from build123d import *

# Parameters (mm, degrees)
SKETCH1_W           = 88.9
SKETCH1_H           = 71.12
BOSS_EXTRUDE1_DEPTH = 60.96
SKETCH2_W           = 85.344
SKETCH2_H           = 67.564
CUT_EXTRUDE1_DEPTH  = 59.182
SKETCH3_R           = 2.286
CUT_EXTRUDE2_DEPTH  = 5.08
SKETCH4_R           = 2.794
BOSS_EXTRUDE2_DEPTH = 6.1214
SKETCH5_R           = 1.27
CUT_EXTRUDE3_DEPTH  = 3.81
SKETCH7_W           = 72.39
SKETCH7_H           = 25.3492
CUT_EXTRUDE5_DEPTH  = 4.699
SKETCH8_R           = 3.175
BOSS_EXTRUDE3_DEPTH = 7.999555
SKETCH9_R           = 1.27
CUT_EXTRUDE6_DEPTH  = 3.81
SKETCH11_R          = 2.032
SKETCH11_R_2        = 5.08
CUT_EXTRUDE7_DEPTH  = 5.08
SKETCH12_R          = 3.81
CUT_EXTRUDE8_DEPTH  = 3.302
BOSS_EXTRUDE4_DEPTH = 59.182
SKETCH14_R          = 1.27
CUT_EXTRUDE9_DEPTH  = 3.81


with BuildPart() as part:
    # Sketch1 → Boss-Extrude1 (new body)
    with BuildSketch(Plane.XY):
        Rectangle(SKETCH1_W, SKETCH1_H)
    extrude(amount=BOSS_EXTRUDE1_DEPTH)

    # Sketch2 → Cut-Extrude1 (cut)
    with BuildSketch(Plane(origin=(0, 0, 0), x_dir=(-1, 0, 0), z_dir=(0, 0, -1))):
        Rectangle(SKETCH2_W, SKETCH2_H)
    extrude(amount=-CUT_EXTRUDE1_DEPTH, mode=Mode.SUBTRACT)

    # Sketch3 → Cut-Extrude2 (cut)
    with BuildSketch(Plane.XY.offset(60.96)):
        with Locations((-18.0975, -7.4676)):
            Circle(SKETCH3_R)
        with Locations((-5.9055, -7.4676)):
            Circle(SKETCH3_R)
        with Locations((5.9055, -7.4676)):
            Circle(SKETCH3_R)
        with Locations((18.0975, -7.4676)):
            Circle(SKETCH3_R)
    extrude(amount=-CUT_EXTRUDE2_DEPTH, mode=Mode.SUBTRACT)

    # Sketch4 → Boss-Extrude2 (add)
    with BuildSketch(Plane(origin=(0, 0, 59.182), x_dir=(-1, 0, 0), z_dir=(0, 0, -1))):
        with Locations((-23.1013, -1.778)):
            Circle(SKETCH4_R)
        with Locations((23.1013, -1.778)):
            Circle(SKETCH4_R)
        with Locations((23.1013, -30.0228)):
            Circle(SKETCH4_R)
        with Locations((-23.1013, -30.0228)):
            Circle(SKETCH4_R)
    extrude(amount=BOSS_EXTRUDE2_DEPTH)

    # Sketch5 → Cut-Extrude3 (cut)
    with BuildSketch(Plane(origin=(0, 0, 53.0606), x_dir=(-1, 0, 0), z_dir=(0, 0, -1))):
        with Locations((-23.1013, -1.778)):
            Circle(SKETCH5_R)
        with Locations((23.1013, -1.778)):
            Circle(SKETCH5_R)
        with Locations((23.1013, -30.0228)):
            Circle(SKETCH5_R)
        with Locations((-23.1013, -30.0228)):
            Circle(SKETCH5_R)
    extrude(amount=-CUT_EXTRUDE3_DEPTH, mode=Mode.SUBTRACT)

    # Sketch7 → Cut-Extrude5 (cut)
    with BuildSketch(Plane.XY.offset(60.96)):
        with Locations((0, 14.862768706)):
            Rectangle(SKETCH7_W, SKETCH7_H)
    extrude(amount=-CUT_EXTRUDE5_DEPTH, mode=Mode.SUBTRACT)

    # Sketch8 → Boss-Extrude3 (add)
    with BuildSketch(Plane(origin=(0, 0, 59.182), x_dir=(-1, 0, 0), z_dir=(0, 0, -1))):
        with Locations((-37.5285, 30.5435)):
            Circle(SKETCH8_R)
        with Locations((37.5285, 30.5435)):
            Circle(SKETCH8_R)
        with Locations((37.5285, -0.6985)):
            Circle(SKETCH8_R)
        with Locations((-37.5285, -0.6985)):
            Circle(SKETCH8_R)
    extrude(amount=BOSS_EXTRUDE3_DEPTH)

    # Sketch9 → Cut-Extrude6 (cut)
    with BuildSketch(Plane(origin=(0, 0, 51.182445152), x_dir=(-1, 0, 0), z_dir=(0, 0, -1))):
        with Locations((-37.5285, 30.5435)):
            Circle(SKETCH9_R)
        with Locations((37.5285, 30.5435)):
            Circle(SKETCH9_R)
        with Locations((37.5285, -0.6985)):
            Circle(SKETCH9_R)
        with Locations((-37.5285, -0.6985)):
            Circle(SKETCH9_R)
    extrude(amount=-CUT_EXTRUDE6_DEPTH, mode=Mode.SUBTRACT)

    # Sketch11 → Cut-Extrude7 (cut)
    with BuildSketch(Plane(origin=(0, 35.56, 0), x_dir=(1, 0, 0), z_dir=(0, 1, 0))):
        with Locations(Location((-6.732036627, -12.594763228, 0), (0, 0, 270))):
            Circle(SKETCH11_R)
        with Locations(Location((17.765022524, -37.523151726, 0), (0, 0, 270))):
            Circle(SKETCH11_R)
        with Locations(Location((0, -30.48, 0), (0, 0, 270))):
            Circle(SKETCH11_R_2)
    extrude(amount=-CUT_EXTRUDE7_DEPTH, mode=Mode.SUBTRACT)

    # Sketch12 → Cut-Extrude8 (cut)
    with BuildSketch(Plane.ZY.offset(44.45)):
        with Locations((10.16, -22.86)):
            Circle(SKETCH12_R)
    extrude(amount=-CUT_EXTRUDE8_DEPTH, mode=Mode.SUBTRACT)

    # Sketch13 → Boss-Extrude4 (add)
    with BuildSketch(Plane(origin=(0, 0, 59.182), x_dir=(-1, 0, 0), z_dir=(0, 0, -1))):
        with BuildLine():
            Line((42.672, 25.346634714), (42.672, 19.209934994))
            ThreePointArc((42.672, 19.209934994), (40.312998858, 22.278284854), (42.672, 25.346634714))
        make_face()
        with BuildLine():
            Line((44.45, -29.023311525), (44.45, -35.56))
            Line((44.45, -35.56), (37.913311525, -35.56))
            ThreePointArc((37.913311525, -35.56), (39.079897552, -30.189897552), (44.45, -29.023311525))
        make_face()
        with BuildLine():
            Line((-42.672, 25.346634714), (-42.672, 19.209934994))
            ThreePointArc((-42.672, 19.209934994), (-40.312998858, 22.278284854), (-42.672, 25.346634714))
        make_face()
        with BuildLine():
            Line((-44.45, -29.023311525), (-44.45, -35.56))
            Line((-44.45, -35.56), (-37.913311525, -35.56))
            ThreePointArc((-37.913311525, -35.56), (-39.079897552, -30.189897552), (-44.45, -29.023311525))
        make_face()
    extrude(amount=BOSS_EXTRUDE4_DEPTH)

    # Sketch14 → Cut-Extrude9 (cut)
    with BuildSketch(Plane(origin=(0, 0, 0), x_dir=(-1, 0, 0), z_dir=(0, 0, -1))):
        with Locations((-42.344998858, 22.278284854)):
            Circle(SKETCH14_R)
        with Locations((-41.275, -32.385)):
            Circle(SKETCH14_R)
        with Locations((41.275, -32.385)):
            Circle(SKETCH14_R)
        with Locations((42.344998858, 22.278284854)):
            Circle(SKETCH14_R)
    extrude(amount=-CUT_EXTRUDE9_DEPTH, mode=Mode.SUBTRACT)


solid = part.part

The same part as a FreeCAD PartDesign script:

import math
import FreeCAD as App
import Part
import Sketcher
Q = App.Units.Quantity

doc = App.newDocument("Part")
body = doc.addObject("PartDesign::Body", "Body")

sketch1 = body.newObject("Sketcher::SketchObject", "Sketch")
sketch1.AttachmentSupport = (doc.getObject("XY_Plane"), [""])
sketch1.MapMode = "FlatFace"
sketch1.addGeometry([
    Part.LineSegment(App.Vector(-44, 36, 0), App.Vector(-44, -36, 0)),
    Part.LineSegment(App.Vector(-44, -36, 0), App.Vector(44, -36, 0)),
    Part.LineSegment(App.Vector(44, -36, 0), App.Vector(44, 36, 0)),
    Part.LineSegment(App.Vector(44, 36, 0), App.Vector(-44, 36, 0)),
], False)
sketch1.addConstraint([
    Sketcher.Constraint("Coincident", 0, 2, 1, 1),
    Sketcher.Constraint("Coincident", 1, 2, 2, 1),
    Sketcher.Constraint("Coincident", 2, 2, 3, 1),
    Sketcher.Constraint("Coincident", 3, 2, 0, 1),
    Sketcher.Constraint("Vertical", 0),
    Sketcher.Constraint("Horizontal", 1),
    Sketcher.Constraint("Vertical", 2),
    Sketcher.Constraint("Horizontal", 3),
    Sketcher.Constraint("Symmetric", 0, 2, 2, 2, -1, 1),
    Sketcher.Constraint("DistanceX", 1, 1, 1, 2, Q("3.5 in")),
    Sketcher.Constraint("DistanceY", 0, 2, 0, 1, Q("2.8 in")),
])
pad1 = body.newObject("PartDesign::Pad", "Pad")
pad1.Profile = sketch1
pad1.Length = Q("2.4 in")

sketch2 = body.newObject("Sketcher::SketchObject", "Sketch001")
sketch2.AttachmentSupport = (doc.getObject("XY_Plane"), [""])
sketch2.MapMode = "FlatFace"
sketch2.addGeometry([
    Part.LineSegment(App.Vector(43, 34, 0), App.Vector(43, -34, 0)),
    Part.LineSegment(App.Vector(43, -34, 0), App.Vector(-43, -34, 0)),
    Part.LineSegment(App.Vector(-43, -34, 0), App.Vector(-43, 34, 0)),
    Part.LineSegment(App.Vector(-43, 34, 0), App.Vector(43, 34, 0)),
], False)
sketch2.addConstraint([
    Sketcher.Constraint("Coincident", 0, 2, 1, 1),
    Sketcher.Constraint("Coincident", 1, 2, 2, 1),
    Sketcher.Constraint("Coincident", 2, 2, 3, 1),
    Sketcher.Constraint("Coincident", 3, 2, 0, 1),
    Sketcher.Constraint("Vertical", 0),
    Sketcher.Constraint("Horizontal", 1),
    Sketcher.Constraint("Vertical", 2),
    Sketcher.Constraint("Horizontal", 3),
    Sketcher.Constraint("Symmetric", 0, 2, 2, 2, -1, 1),
    Sketcher.Constraint("DistanceX", 1, 2, 1, 1, Q("3.36 in")),
    Sketcher.Constraint("DistanceY", 0, 2, 0, 1, Q("2.66 in")),
])
pocket1 = body.newObject("PartDesign::Pocket", "Pocket")
pocket1.Profile = sketch2
pocket1.Length = Q("2.33 in")
pocket1.Reversed = True

sketch3 = body.newObject("Sketcher::SketchObject", "Sketch002")
sketch3.AttachmentSupport = (doc.getObject("XY_Plane"), [""])
sketch3.MapMode = "FlatFace"
sketch3.AttachmentOffset = App.Placement(App.Vector(0, 0, 2.4 * 25.4), App.Rotation())
sketch3.addGeometry([
    Part.Circle(App.Vector(-18.1, -7.5, 0), App.Vector(0, 0, 1), 2.3),
    Part.Circle(App.Vector(-5.9, -7.5, 0), App.Vector(0, 0, 1), 2.3),
    Part.Circle(App.Vector(5.9, -7.5, 0), App.Vector(0, 0, 1), 2.3),
    Part.Circle(App.Vector(18.1, -7.5, 0), App.Vector(0, 0, 1), 2.3),
], False)
sketch3.addConstraint([
    Sketcher.Constraint("Equal", 0, 1),
    Sketcher.Constraint("Equal", 1, 2),
    Sketcher.Constraint("Equal", 2, 3),
    Sketcher.Constraint("Symmetric", 1, 3, 2, 3, -2),
    Sketcher.Constraint("Symmetric", 0, 3, 3, 3, -2),
    Sketcher.Constraint("Horizontal", 0, 3, 1, 3),
    Sketcher.Constraint("Diameter", 0, Q("0.18 in")),
    Sketcher.Constraint("DistanceX", 0, 3, 1, 3, Q("0.48 in")),
    Sketcher.Constraint("DistanceY", 0, 3, -1, 1, Q("0.294 in")),
    Sketcher.Constraint("DistanceX", 1, 3, 2, 3, Q("0.465 in")),
])
pocket2 = body.newObject("PartDesign::Pocket", "Pocket001")
pocket2.Profile = sketch3
pocket2.Length = Q("0.2 in")

sketch4 = body.newObject("Sketcher::SketchObject", "Sketch003")
sketch4.AttachmentSupport = (doc.getObject("XY_Plane"), [""])
sketch4.MapMode = "FlatFace"
sketch4.AttachmentOffset = App.Placement(App.Vector(0, 0, 2.33 * 25.4), App.Rotation())
sketch4.addGeometry([
    Part.Circle(App.Vector(23.1, -1.8, 0), App.Vector(0, 0, 1), 2.8),
    Part.Circle(App.Vector(-23.1, -1.8, 0), App.Vector(0, 0, 1), 2.8),
    Part.Circle(App.Vector(-23.1, -30, 0), App.Vector(0, 0, 1), 2.8),
    Part.Circle(App.Vector(23.1, -30, 0), App.Vector(0, 0, 1), 2.8),
], False)
sketch4.addConstraint([
    Sketcher.Constraint("Equal", 0, 1),
    Sketcher.Constraint("Equal", 1, 2),
    Sketcher.Constraint("Equal", 2, 3),
    Sketcher.Constraint("Symmetric", 0, 3, 1, 3, -2),
    Sketcher.Constraint("Symmetric", 2, 3, 3, 3, -2),
    Sketcher.Constraint("Vertical", 1, 3, 2, 3),
    Sketcher.Constraint("Diameter", 0, Q("0.22 in")),
    Sketcher.Constraint("DistanceY", 0, 3, -1, 1, Q("0.07 in")),
    Sketcher.Constraint("DistanceY", 2, 3, -1, 1, Q("1.182 in")),
    Sketcher.Constraint("DistanceX", 1, 3, 0, 3, Q("1.819 in")),
])
pad2 = body.newObject("PartDesign::Pad", "Pad001")
pad2.Profile = sketch4
pad2.Length = Q("0.241 in")
pad2.Reversed = True

sketch5 = body.newObject("Sketcher::SketchObject", "Sketch004")
sketch5.AttachmentSupport = (doc.getObject("XY_Plane"), [""])
sketch5.MapMode = "FlatFace"
sketch5.AttachmentOffset = App.Placement(App.Vector(0, 0, 2.089 * 25.4), App.Rotation())
sketch5.addGeometry([
    Part.Circle(App.Vector(23.1, -1.8, 0), App.Vector(0, 0, 1), 1.3),
    Part.Circle(App.Vector(-23.1, -1.8, 0), App.Vector(0, 0, 1), 1.3),
    Part.Circle(App.Vector(-23.1, -30, 0), App.Vector(0, 0, 1), 1.3),
    Part.Circle(App.Vector(23.1, -30, 0), App.Vector(0, 0, 1), 1.3),
], False)
sketch5.addConstraint([
    Sketcher.Constraint("Equal", 0, 1),
    Sketcher.Constraint("Equal", 1, 2),
    Sketcher.Constraint("Equal", 2, 3),
    Sketcher.Constraint("Symmetric", 0, 3, 1, 3, -2),
    Sketcher.Constraint("Symmetric", 2, 3, 3, 3, -2),
    Sketcher.Constraint("Vertical", 1, 3, 2, 3),
    Sketcher.Constraint("Diameter", 0, Q("0.1 in")),
    Sketcher.Constraint("DistanceY", 0, 3, -1, 1, Q("0.07 in")),
    Sketcher.Constraint("DistanceY", 2, 3, -1, 1, Q("1.182 in")),
    Sketcher.Constraint("DistanceX", 1, 3, 0, 3, Q("1.819 in")),
])
pocket3 = body.newObject("PartDesign::Pocket", "Pocket002")
pocket3.Profile = sketch5
pocket3.Length = Q("0.15 in")
pocket3.Reversed = True

sketch6 = body.newObject("Sketcher::SketchObject", "Sketch005")
sketch6.AttachmentSupport = (doc.getObject("XY_Plane"), [""])
sketch6.MapMode = "FlatFace"
sketch6.AttachmentOffset = App.Placement(App.Vector(0, 0, 2.4 * 25.4), App.Rotation())
sketch6.addGeometry([
    Part.LineSegment(App.Vector(-36, 28, 0), App.Vector(-36, 2, 0)),
    Part.LineSegment(App.Vector(-36, 2, 0), App.Vector(36, 2, 0)),
    Part.LineSegment(App.Vector(36, 2, 0), App.Vector(36, 28, 0)),
    Part.LineSegment(App.Vector(36, 28, 0), App.Vector(-36, 28, 0)),
], False)
sketch6.addConstraint([
    Sketcher.Constraint("Coincident", 0, 2, 1, 1),
    Sketcher.Constraint("Coincident", 1, 2, 2, 1),
    Sketcher.Constraint("Coincident", 2, 2, 3, 1),
    Sketcher.Constraint("Coincident", 3, 2, 0, 1),
    Sketcher.Constraint("Vertical", 0),
    Sketcher.Constraint("Horizontal", 1),
    Sketcher.Constraint("Vertical", 2),
    Sketcher.Constraint("Horizontal", 3),
    Sketcher.Constraint("DistanceX", 1, 1, 1, 2, Q("2.85 in")),
    Sketcher.Constraint("DistanceY", 0, 2, 0, 1, Q("0.998 in")),
    Sketcher.Constraint("DistanceX", 0, 2, -1, 1, Q("1.425 in")),
    Sketcher.Constraint("DistanceY", -1, 1, 0, 2, Q("2.188169 mm")),
])
pocket4 = body.newObject("PartDesign::Pocket", "Pocket003")
pocket4.Profile = sketch6
pocket4.Length = Q("0.185 in")

sketch7 = body.newObject("Sketcher::SketchObject", "Sketch006")
sketch7.AttachmentSupport = (doc.getObject("XY_Plane"), [""])
sketch7.MapMode = "FlatFace"
sketch7.AttachmentOffset = App.Placement(App.Vector(0, 0, 2.33 * 25.4), App.Rotation())
sketch7.addGeometry([
    Part.Circle(App.Vector(37.5, 30.5, 0), App.Vector(0, 0, 1), 3.2),
    Part.Circle(App.Vector(-37.5, 30.5, 0), App.Vector(0, 0, 1), 3.2),
    Part.Circle(App.Vector(-37.5, -0.7, 0), App.Vector(0, 0, 1), 3.2),
    Part.Circle(App.Vector(37.5, -0.7, 0), App.Vector(0, 0, 1), 3.2),
], False)
sketch7.addConstraint([
    Sketcher.Constraint("Equal", 0, 1),
    Sketcher.Constraint("Equal", 1, 2),
    Sketcher.Constraint("Equal", 2, 3),
    Sketcher.Constraint("Symmetric", 0, 3, 1, 3, -2),
    Sketcher.Constraint("Symmetric", 2, 3, 3, 3, -2),
    Sketcher.Constraint("Vertical", 1, 3, 2, 3),
    Sketcher.Constraint("Diameter", 0, Q("0.25 in")),
    Sketcher.Constraint("DistanceY", 2, 3, 1, 3, Q("1.23 in")),
    Sketcher.Constraint("DistanceX", 1, 3, 0, 3, Q("2.955 in")),
    Sketcher.Constraint("DistanceY", -1, 1, 0, 3, Q("1.2025 in")),
])
pad3 = body.newObject("PartDesign::Pad", "Pad002")
pad3.Profile = sketch7
pad3.Length = 7.999555
pad3.Reversed = True

sketch8 = body.newObject("Sketcher::SketchObject", "Sketch007")
sketch8.AttachmentSupport = (doc.getObject("XY_Plane"), [""])
sketch8.MapMode = "FlatFace"
sketch8.AttachmentOffset = App.Placement(App.Vector(0, 0, 51.182445), App.Rotation())
sketch8.addGeometry([
    Part.Circle(App.Vector(37.5, 30.5, 0), App.Vector(0, 0, 1), 1.3),
    Part.Circle(App.Vector(-37.5, 30.5, 0), App.Vector(0, 0, 1), 1.3),
    Part.Circle(App.Vector(-37.5, -0.7, 0), App.Vector(0, 0, 1), 1.3),
    Part.Circle(App.Vector(37.5, -0.7, 0), App.Vector(0, 0, 1), 1.3),
], False)
sketch8.addConstraint([
    Sketcher.Constraint("Equal", 0, 1),
    Sketcher.Constraint("Equal", 1, 2),
    Sketcher.Constraint("Equal", 2, 3),
    Sketcher.Constraint("Symmetric", 0, 3, 1, 3, -2),
    Sketcher.Constraint("Symmetric", 2, 3, 3, 3, -2),
    Sketcher.Constraint("Vertical", 1, 3, 2, 3),
    Sketcher.Constraint("Diameter", 0, Q("0.1 in")),
    Sketcher.Constraint("DistanceY", 2, 3, 1, 3, Q("1.23 in")),
    Sketcher.Constraint("DistanceX", 1, 3, 0, 3, Q("2.955 in")),
    Sketcher.Constraint("DistanceY", -1, 1, 0, 3, Q("1.2025 in")),
])
pocket5 = body.newObject("PartDesign::Pocket", "Pocket004")
pocket5.Profile = sketch8
pocket5.Length = Q("0.15 in")
pocket5.Reversed = True

sketch9 = body.newObject("Sketcher::SketchObject", "Sketch008")
sketch9.AttachmentSupport = (doc.getObject("XZ_Plane"), [""])
sketch9.MapMode = "FlatFace"
sketch9.AttachmentOffset = App.Placement(App.Vector(0, 0, -1.4 * 25.4), App.Rotation())
sketch9.addGeometry([
    Part.Circle(App.Vector(-6.7, 12.6, 0), App.Vector(0, 0, 1), 2),
    Part.Circle(App.Vector(17.8, 37.5, 0), App.Vector(0, 0, 1), 2),
    Part.Circle(App.Vector(0, 30.5, 0), App.Vector(0, 0, 1), 5.1),
], False)
sketch9.addConstraint([
    Sketcher.Constraint("Equal", 0, 1),
    Sketcher.Constraint("PointOnObject", 2, 3, -2),
    Sketcher.Constraint("Diameter", 2, Q("0.4 in")),
    Sketcher.Constraint("Diameter", 0, Q("0.16 in")),
    Sketcher.Constraint("DistanceY", -1, 1, 2, 3, Q("1.2 in")),
    Sketcher.Constraint("DistanceY", -1, 1, 1, 3, Q("37.523152 mm")),
    Sketcher.Constraint("DistanceX", 0, 3, 1, 3, Q("24.497059 mm")),
    Sketcher.Constraint("DistanceY", 0, 3, 1, 3, Q("24.928388 mm")),
    Sketcher.Constraint("DistanceX", 0, 3, -1, 1, Q("6.732037 mm")),
])
pocket6 = body.newObject("PartDesign::Pocket", "Pocket005")
pocket6.Profile = sketch9
pocket6.Length = Q("0.2 in")
pocket6.Reversed = True

sketch10 = body.newObject("Sketcher::SketchObject", "Sketch009")
sketch10.AttachmentSupport = (doc.getObject("YZ_Plane"), [""])
sketch10.MapMode = "FlatFace"
sketch10.AttachmentOffset = App.Placement(App.Vector(0, 0, -1.75 * 25.4), App.Rotation())
sketch10.addGeometry(Part.Circle(App.Vector(-22.9, 10.2, 0), App.Vector(0, 0, 1), 3.8), False)
sketch10.addConstraint([
    Sketcher.Constraint("Diameter", 0, Q("0.3 in")),
    Sketcher.Constraint("DistanceX", 0, 3, -1, 1, Q("0.9 in")),
    Sketcher.Constraint("DistanceY", -1, 1, 0, 3, Q("0.4 in")),
])
pocket7 = body.newObject("PartDesign::Pocket", "Pocket006")
pocket7.Profile = sketch10
pocket7.Length = Q("0.13 in")
pocket7.Reversed = True

sketch11 = body.newObject("Sketcher::SketchObject", "Sketch010")
sketch11.AttachmentSupport = (doc.getObject("XY_Plane"), [""])
sketch11.MapMode = "FlatFace"
sketch11.AttachmentOffset = App.Placement(App.Vector(0, 0, 2.33 * 25.4), App.Rotation())
sketch11.addGeometry([
    Part.LineSegment(App.Vector(-42.7, 19.2, 0), App.Vector(-42.7, 25.3, 0)),
    Part.ArcOfCircle(Part.Circle(App.Vector(-43.5, 22.3, 0), App.Vector(0, 0, 1), 3.2), math.radians(-75), math.radians(75)),
    Part.LineSegment(App.Vector(-44.5, -35.6, 0), App.Vector(-44.5, -29, 0)),
    Part.ArcOfCircle(Part.Circle(App.Vector(-42.7, -33.8, 0), App.Vector(0, 0, 1), 5.1), math.radians(-20), math.radians(110)),
    Part.LineSegment(App.Vector(-37.9, -35.6, 0), App.Vector(-44.5, -35.6, 0)),
    Part.LineSegment(App.Vector(42.7, 25.3, 0), App.Vector(42.7, 19.2, 0)),
    Part.ArcOfCircle(Part.Circle(App.Vector(43.5, 22.3, 0), App.Vector(0, 0, 1), 3.2), math.radians(105), math.radians(255)),
    Part.LineSegment(App.Vector(44.5, -29, 0), App.Vector(44.5, -35.6, 0)),
    Part.LineSegment(App.Vector(44.5, -35.6, 0), App.Vector(37.9, -35.6, 0)),
    Part.ArcOfCircle(Part.Circle(App.Vector(42.7, -33.8, 0), App.Vector(0, 0, 1), 5.1), math.radians(70), math.radians(200)),
], False)
sketch11.addConstraint([
    Sketcher.Constraint("Coincident", 0, 1, 1, 1),
    Sketcher.Constraint("Coincident", 1, 2, 0, 2),
    Sketcher.Constraint("Coincident", 2, 2, 3, 2),
    Sketcher.Constraint("Coincident", 3, 1, 4, 1),
    Sketcher.Constraint("Coincident", 4, 2, 2, 1),
    Sketcher.Constraint("Coincident", 5, 1, 6, 1),
    Sketcher.Constraint("Coincident", 6, 2, 5, 2),
    Sketcher.Constraint("Coincident", 7, 2, 8, 1),
    Sketcher.Constraint("Coincident", 8, 2, 9, 2),
    Sketcher.Constraint("Coincident", 9, 1, 7, 1),
    Sketcher.Constraint("Vertical", 0),
    Sketcher.Constraint("Vertical", 2),
    Sketcher.Constraint("Horizontal", 4),
    Sketcher.Constraint("Vertical", 5),
    Sketcher.Constraint("Vertical", 7),
    Sketcher.Constraint("Horizontal", 8),
    Sketcher.Constraint("Equal", 1, 6),
    Sketcher.Constraint("Equal", 3, 9),
    Sketcher.Constraint("Symmetric", 1, 3, 6, 3, -2),
    Sketcher.Constraint("Symmetric", 3, 3, 9, 3, -2),
    Sketcher.Constraint("Symmetric", 4, 2, 7, 2, -2),
    Sketcher.Constraint("Horizontal", 1, 2, 5, 1),
    Sketcher.Constraint("Vertical", 3, 3, 0, 1),
    Sketcher.Constraint("Equal", 8, 2),
    Sketcher.Constraint("Radius", 3, Q("0.2 in")),
    Sketcher.Constraint("Radius", 1, Q("0.125 in")),
    Sketcher.Constraint("DistanceY", 3, 1, -1, 1, Q("1.4 in")),
    Sketcher.Constraint("DistanceX", 3, 3, -1, 1, Q("1.68 in")),
    Sketcher.Constraint("DistanceY", 3, 3, -1, 1, Q("1.33 in")),
    Sketcher.Constraint("DistanceY", 0, 1, 0, 2, Q("6.1367 mm")),
    Sketcher.Constraint("DistanceY", -1, 1, 1, 3, Q("22.278285 mm")),
])
pad4 = body.newObject("PartDesign::Pad", "Pad003")
pad4.Profile = sketch11
pad4.Length = Q("2.33 in")
pad4.Reversed = True

sketch12 = body.newObject("Sketcher::SketchObject", "Sketch011")
sketch12.AttachmentSupport = (doc.getObject("XY_Plane"), [""])
sketch12.MapMode = "FlatFace"
sketch12.addGeometry([
    Part.Circle(App.Vector(42.3, 22.3, 0), App.Vector(0, 0, 1), 1.3),
    Part.Circle(App.Vector(41.3, -32.4, 0), App.Vector(0, 0, 1), 1.3),
    Part.Circle(App.Vector(-41.3, -32.4, 0), App.Vector(0, 0, 1), 1.3),
    Part.Circle(App.Vector(-42.3, 22.3, 0), App.Vector(0, 0, 1), 1.3),
], False)
sketch12.addConstraint([
    Sketcher.Constraint("Equal", 0, 1),
    Sketcher.Constraint("Equal", 1, 2),
    Sketcher.Constraint("Equal", 2, 3),
    Sketcher.Constraint("Symmetric", 1, 3, 2, 3, -2),
    Sketcher.Constraint("Symmetric", 0, 3, 3, 3, -2),
    Sketcher.Constraint("Diameter", 0, Q("0.1 in")),
    Sketcher.Constraint("DistanceX", 2, 3, 1, 3, Q("3.25 in")),
    Sketcher.Constraint("DistanceY", 1, 3, -1, 1, Q("1.275 in")),
    Sketcher.Constraint("DistanceX", -1, 1, 0, 3, Q("42.344999 mm")),
    Sketcher.Constraint("DistanceY", -1, 1, 0, 3, Q("22.278285 mm")),
])
pocket8 = body.newObject("PartDesign::Pocket", "Pocket007")
pocket8.Profile = sketch12
pocket8.Length = Q("0.15 in")
pocket8.Reversed = True

doc.recompute()
